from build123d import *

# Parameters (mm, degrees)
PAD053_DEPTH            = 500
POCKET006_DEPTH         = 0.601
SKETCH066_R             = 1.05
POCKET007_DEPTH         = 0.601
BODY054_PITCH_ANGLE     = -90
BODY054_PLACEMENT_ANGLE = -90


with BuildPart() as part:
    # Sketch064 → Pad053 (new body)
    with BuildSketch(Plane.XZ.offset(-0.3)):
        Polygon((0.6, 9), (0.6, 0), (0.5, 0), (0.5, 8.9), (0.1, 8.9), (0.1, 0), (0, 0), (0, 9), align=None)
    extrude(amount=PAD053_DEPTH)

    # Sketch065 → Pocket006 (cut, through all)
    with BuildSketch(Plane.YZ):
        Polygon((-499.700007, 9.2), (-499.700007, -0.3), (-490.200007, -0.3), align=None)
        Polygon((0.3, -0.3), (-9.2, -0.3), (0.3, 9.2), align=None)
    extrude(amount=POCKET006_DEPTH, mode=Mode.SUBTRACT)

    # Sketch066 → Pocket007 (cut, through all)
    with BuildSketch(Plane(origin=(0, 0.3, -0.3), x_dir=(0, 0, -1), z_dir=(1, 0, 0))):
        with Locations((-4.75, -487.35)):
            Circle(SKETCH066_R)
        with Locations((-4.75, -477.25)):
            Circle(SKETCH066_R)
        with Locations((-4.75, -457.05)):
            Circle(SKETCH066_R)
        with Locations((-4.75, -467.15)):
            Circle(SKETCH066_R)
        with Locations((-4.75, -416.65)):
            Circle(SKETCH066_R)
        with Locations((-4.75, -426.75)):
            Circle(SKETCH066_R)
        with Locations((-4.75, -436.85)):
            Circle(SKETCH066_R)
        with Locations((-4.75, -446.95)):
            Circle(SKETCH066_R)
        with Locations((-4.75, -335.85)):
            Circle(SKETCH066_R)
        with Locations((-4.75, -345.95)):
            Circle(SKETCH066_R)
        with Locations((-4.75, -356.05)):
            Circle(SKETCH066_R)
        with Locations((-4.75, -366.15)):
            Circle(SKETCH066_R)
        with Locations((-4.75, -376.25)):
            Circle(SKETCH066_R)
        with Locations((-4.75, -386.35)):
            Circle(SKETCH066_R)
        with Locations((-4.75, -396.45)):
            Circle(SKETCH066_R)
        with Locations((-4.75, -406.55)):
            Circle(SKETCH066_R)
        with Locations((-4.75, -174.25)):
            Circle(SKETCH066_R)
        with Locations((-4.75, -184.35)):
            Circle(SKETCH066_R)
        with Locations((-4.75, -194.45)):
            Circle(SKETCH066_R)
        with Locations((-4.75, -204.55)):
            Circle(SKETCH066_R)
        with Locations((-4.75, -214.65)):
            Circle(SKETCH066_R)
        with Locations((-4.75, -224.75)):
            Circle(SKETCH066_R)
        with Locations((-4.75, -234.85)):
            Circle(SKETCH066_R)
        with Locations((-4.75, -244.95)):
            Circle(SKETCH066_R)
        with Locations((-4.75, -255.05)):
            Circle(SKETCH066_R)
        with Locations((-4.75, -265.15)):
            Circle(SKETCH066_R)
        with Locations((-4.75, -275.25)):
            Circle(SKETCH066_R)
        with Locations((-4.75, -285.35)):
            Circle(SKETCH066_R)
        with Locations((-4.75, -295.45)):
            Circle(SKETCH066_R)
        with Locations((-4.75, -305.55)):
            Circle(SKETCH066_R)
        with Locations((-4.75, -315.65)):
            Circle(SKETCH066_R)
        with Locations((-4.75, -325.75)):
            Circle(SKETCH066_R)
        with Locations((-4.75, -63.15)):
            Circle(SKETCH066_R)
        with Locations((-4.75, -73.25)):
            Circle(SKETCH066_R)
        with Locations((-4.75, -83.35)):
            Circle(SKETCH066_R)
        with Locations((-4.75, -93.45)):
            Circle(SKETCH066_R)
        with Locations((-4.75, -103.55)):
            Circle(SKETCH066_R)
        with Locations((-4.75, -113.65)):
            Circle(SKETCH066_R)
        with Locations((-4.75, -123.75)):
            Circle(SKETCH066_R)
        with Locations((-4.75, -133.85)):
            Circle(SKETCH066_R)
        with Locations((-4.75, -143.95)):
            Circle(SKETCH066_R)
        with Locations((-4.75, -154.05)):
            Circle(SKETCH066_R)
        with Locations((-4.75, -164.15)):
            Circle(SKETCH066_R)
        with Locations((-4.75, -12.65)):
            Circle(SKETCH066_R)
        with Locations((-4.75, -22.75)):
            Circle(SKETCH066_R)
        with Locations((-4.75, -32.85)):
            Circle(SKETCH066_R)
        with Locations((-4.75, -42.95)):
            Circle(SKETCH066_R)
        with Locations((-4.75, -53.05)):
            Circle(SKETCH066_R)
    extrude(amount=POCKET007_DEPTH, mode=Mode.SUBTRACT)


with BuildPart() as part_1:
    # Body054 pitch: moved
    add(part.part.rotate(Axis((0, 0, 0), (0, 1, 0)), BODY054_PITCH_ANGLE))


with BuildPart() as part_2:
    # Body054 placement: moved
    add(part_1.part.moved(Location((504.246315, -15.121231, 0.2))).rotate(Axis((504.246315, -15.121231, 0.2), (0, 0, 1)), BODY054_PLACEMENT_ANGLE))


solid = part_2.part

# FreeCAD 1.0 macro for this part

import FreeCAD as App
import Part
import Sketcher
from FreeCAD import Vector
Q = App.Units.Quantity


def add_polygon(sketch, points):
    """Adds a closed chain of lines whose ends are joined by coincident constraints."""
    first, n = sketch.GeometryCount, len(points)
    for a, b in zip(points, points[1:] + points[:1]):
        sketch.addGeometry(Part.LineSegment(App.Vector(*a, 0), App.Vector(*b, 0)), False)
    for i in range(n):
        sketch.addConstraint(Sketcher.Constraint("Coincident", first + i, 2, first + (i + 1) % n, 1))

doc = App.newDocument("Part")
body = doc.addObject("PartDesign::Body", "Body")

# Sketch on XZ plane
sketch1 = body.newObject("Sketcher::SketchObject", "Sketch")
sketch1.AttachmentSupport = (doc.getObject("XZ_Plane"), [""])
sketch1.MapMode = "FlatFace"
sketch1.AttachmentOffset = App.Placement(Vector(0, 0, -0.3), App.Rotation())
add_polygon(sketch1, [(0.6, 0), (0.6, 9), (0, 9), (0, 0), (0.1, 0), (0.1, 8.9), (0.5, 8.9), (0.5, 0)])  # lines 0-7
sketch1.addConstraint(Sketcher.Constraint("Vertical", 0))
sketch1.addConstraint(Sketcher.Constraint("Horizontal", 1))
sketch1.addConstraint(Sketcher.Constraint("Vertical", 2))
sketch1.addConstraint(Sketcher.Constraint("Horizontal", 3))
sketch1.addConstraint(Sketcher.Constraint("Vertical", 4))
sketch1.addConstraint(Sketcher.Constraint("Horizontal", 5))
sketch1.addConstraint(Sketcher.Constraint("Vertical", 6))
sketch1.addConstraint(Sketcher.Constraint("Horizontal", 7))
sketch1.addConstraint(Sketcher.Constraint("Coincident", 2, 2, -1, 1))
sketch1.addConstraint(Sketcher.Constraint("PointOnObject", 6, 2, -1))
sketch1.addConstraint(Sketcher.Constraint("Equal", 3, 7))
sketch1.addConstraint(Sketcher.Constraint("DistanceY", 0, 1, 0, 2, Q("9 mm")))
sketch1.addConstraint(Sketcher.Constraint("DistanceX", 1, 2, 1, 1, Q("0.6 mm")))
sketch1.addConstraint(Sketcher.Constraint("DistanceX", 3, 1, 3, 2, Q("0.1 mm")))
sketch1.addConstraint(Sketcher.Constraint("DistanceY", 4, 1, 4, 2, Q("8.9 mm")))
pad1 = body.newObject("PartDesign::Pad", "Pad")
pad1.Profile = sketch1
pad1.Length = 500

# Sketch on YZ plane
sketch2 = body.newObject("Sketcher::SketchObject", "Sketch001")
sketch2.AttachmentSupport = (doc.getObject("YZ_Plane"), [""])
sketch2.MapMode = "FlatFace"
add_polygon(sketch2, [(-499.700007, 9.2), (-499.700007, -0.3), (-490.200007, -0.3)])  # lines 0-2
add_polygon(sketch2, [(-9.2, -0.3), (0.3, -0.3), (0.3, 9.2)])  # lines 3-5
sketch2.addConstraint(Sketcher.Constraint("Vertical", 0))
sketch2.addConstraint(Sketcher.Constraint("Horizontal", 1))
sketch2.addConstraint(Sketcher.Constraint("Horizontal", 3))
sketch2.addConstraint(Sketcher.Constraint("Vertical", 4))
sketch2.addConstraint(Sketcher.Constraint("Perpendicular", 2, 5))
sketch2.addConstraint(Sketcher.Constraint("Horizontal", 1, 2, 3, 2))
sketch2.addConstraint(Sketcher.Constraint("Horizontal", 2, 2, 4, 2))
sketch2.addConstraint(Sketcher.Constraint("Equal", 1, 3))
sketch2.addConstraint(Sketcher.Constraint("DistanceX", 1, 1, 1, 2, Q("9.5 mm")))
sketch2.addConstraint(Sketcher.Constraint("DistanceY", 0, 2, -1, 1, Q("0.3 mm")))
sketch2.addConstraint(Sketcher.Constraint("DistanceX", -1, 1, 3, 2, Q("0.3 mm")))
sketch2.addConstraint(Sketcher.Constraint("DistanceX", 0, 2, -1, 1, Q("499.700007 mm")))
pocket1 = body.newObject("PartDesign::Pocket", "Pocket")
pocket1.Profile = sketch2
pocket1.Type = "ThroughAll"
pocket1.Reversed = True

# Sketch on YZ plane
sketch3 = body.newObject("Sketcher::SketchObject", "Sketch002")
sketch3.AttachmentSupport = (doc.getObject("YZ_Plane"), [""])
sketch3.MapMode = "FlatFace"
sketch3.addGeometry(Part.Circle(Vector(-487.05, 4.45, 0), Vector(0, 0, 1), 1.05), False)
sketch3.addGeometry(Part.Circle(Vector(-476.95, 4.45, 0), Vector(0, 0, 1), 1.05), False)
sketch3.addGeometry(Part.Circle(Vector(-456.75, 4.45, 0), Vector(0, 0, 1), 1.05), False)
sketch3.addGeometry(Part.Circle(Vector(-466.85, 4.45, 0), Vector(0, 0, 1), 1.05), False)
sketch3.addGeometry(Part.Circle(Vector(-416.35, 4.45, 0), Vector(0, 0, 1), 1.05), False)
sketch3.addGeometry(Part.Circle(Vector(-426.45, 4.45, 0), Vector(0, 0, 1), 1.05), False)
sketch3.addGeometry(Part.Circle(Vector(-436.55, 4.45, 0), Vector(0, 0, 1), 1.05), False)
sketch3.addGeometry(Part.Circle(Vector(-446.65, 4.45, 0), Vector(0, 0, 1), 1.05), False)
sketch3.addGeometry(Part.Circle(Vector(-335.55, 4.45, 0), Vector(0, 0, 1), 1.05), False)
sketch3.addGeometry(Part.Circle(Vector(-345.65, 4.45, 0), Vector(0, 0, 1), 1.05), False)
sketch3.addGeometry(Part.Circle(Vector(-355.75, 4.45, 0), Vector(0, 0, 1), 1.05), False)
sketch3.addGeometry(Part.Circle(Vector(-365.85, 4.45, 0), Vector(0, 0, 1), 1.05), False)
sketch3.addGeometry(Part.Circle(Vector(-375.95, 4.45, 0), Vector(0, 0, 1), 1.05), False)
sketch3.addGeometry(Part.Circle(Vector(-386.05, 4.45, 0), Vector(0, 0, 1), 1.05), False)
sketch3.addGeometry(Part.Circle(Vector(-396.15, 4.45, 0), Vector(0, 0, 1), 1.05), False)
sketch3.addGeometry(Part.Circle(Vector(-406.25, 4.45, 0), Vector(0, 0, 1), 1.05), False)
sketch3.addGeometry(Part.Circle(Vector(-173.95, 4.45, 0), Vector(0, 0, 1), 1.05), False)
sketch3.addGeometry(Part.Circle(Vector(-184.05, 4.45, 0), Vector(0, 0, 1), 1.05), False)
sketch3.addGeometry(Part.Circle(Vector(-194.15, 4.45, 0), Vector(0, 0, 1), 1.05), False)
sketch3.addGeometry(Part.Circle(Vector(-204.25, 4.45, 0), Vector(0, 0, 1), 1.05), False)
sketch3.addGeometry(Part.Circle(Vector(-214.35, 4.45, 0), Vector(0, 0, 1), 1.05), False)
sketch3.addGeometry(Part.Circle(Vector(-224.45, 4.45, 0), Vector(0, 0, 1), 1.05), False)
sketch3.addGeometry(Part.Circle(Vector(-234.55, 4.45, 0), Vector(0, 0, 1), 1.05), False)
sketch3.addGeometry(Part.Circle(Vector(-244.65, 4.45, 0), Vector(0, 0, 1), 1.05), False)
sketch3.addGeometry(Part.Circle(Vector(-254.75, 4.45, 0), Vector(0, 0, 1), 1.05), False)
sketch3.addGeometry(Part.Circle(Vector(-264.85, 4.45, 0), Vector(0, 0, 1), 1.05), False)
sketch3.addGeometry(Part.Circle(Vector(-274.95, 4.45, 0), Vector(0, 0, 1), 1.05), False)
sketch3.addGeometry(Part.Circle(Vector(-285.05, 4.45, 0), Vector(0, 0, 1), 1.05), False)
sketch3.addGeometry(Part.Circle(Vector(-295.15, 4.45, 0), Vector(0, 0, 1), 1.05), False)
sketch3.addGeometry(Part.Circle(Vector(-305.25, 4.45, 0), Vector(0, 0, 1), 1.05), False)
sketch3.addGeometry(Part.Circle(Vector(-315.35, 4.45, 0), Vector(0, 0, 1), 1.05), False)
sketch3.addGeometry(Part.Circle(Vector(-325.45, 4.45, 0), Vector(0, 0, 1), 1.05), False)
sketch3.addGeometry(Part.Circle(Vector(-62.85, 4.45, 0), Vector(0, 0, 1), 1.05), False)
sketch3.addGeometry(Part.Circle(Vector(-72.95, 4.45, 0), Vector(0, 0, 1), 1.05), False)
sketch3.addGeometry(Part.Circle(Vector(-83.05, 4.45, 0), Vector(0, 0, 1), 1.05), False)
sketch3.addGeometry(Part.Circle(Vector(-93.15, 4.45, 0), Vector(0, 0, 1), 1.05), False)
sketch3.addGeometry(Part.Circle(Vector(-103.25, 4.45, 0), Vector(0, 0, 1), 1.05), False)
sketch3.addGeometry(Part.Circle(Vector(-113.35, 4.45, 0), Vector(0, 0, 1), 1.05), False)
sketch3.addGeometry(Part.Circle(Vector(-123.45, 4.45, 0), Vector(0, 0, 1), 1.05), False)
sketch3.addGeometry(Part.Circle(Vector(-133.55, 4.45, 0), Vector(0, 0, 1), 1.05), False)
sketch3.addGeometry(Part.Circle(Vector(-143.65, 4.45, 0), Vector(0, 0, 1), 1.05), False)
sketch3.addGeometry(Part.Circle(Vector(-153.75, 4.45, 0), Vector(0, 0, 1), 1.05), False)
sketch3.addGeometry(Part.Circle(Vector(-163.85, 4.45, 0), Vector(0, 0, 1), 1.05), False)
sketch3.addGeometry(Part.Circle(Vector(-12.35, 4.45, 0), Vector(0, 0, 1), 1.05), False)
sketch3.addGeometry(Part.Circle(Vector(-22.45, 4.45, 0), Vector(0, 0, 1), 1.05), False)
sketch3.addGeometry(Part.Circle(Vector(-32.55, 4.45, 0), Vector(0, 0, 1), 1.05), False)
sketch3.addGeometry(Part.Circle(Vector(-42.65, 4.45, 0), Vector(0, 0, 1), 1.05), False)
sketch3.addGeometry(Part.Circle(Vector(-52.75, 4.45, 0), Vector(0, 0, 1), 1.05), False)
sketch3.addConstraint(Sketcher.Constraint("Equal", 0, 1))
sketch3.addConstraint(Sketcher.Constraint("Equal", 1, 2))
sketch3.addConstraint(Sketcher.Constraint("Equal", 2, 3))
sketch3.addConstraint(Sketcher.Constraint("Equal", 3, 4))
sketch3.addConstraint(Sketcher.Constraint("Equal", 4, 5))
sketch3.addConstraint(Sketcher.Constraint("Equal", 5, 6))
sketch3.addConstraint(Sketcher.Constraint("Equal", 6, 7))
sketch3.addConstraint(Sketcher.Constraint("Equal", 7, 8))
sketch3.addConstraint(Sketcher.Constraint("Equal", 8, 9))
sketch3.addConstraint(Sketcher.Constraint("Equal", 9, 10))
sketch3.addConstraint(Sketcher.Constraint("Equal", 10, 11))
sketch3.addConstraint(Sketcher.Constraint("Equal", 11, 12))
sketch3.addConstraint(Sketcher.Constraint("Equal", 12, 13))
sketch3.addConstraint(Sketcher.Constraint("Equal", 13, 14))
sketch3.addConstraint(Sketcher.Constraint("Equal", 14, 15))
sketch3.addConstraint(Sketcher.Constraint("Equal", 15, 16))
sketch3.addConstraint(Sketcher.Constraint("Equal", 16, 17))
sketch3.addConstraint(Sketcher.Constraint("Equal", 17, 18))
sketch3.addConstraint(Sketcher.Constraint("Equal", 18, 19))
sketch3.addConstraint(Sketcher.Constraint("Equal", 19, 20))
sketch3.addConstraint(Sketcher.Constraint("Equal", 20, 21))
sketch3.addConstraint(Sketcher.Constraint("Equal", 21, 22))
sketch3.addConstraint(Sketcher.Constraint("Equal", 22, 23))
sketch3.addConstraint(Sketcher.Constraint("Equal", 23, 24))
sketch3.addConstraint(Sketcher.Constraint("Equal", 24, 25))
sketch3.addConstraint(Sketcher.Constraint("Equal", 25, 26))
sketch3.addConstraint(Sketcher.Constraint("Equal", 26, 27))
sketch3.addConstraint(Sketcher.Constraint("Equal", 27, 28))
sketch3.addConstraint(Sketcher.Constraint("Equal", 28, 29))
sketch3.addConstraint(Sketcher.Constraint("Equal", 29, 30))
sketch3.addConstraint(Sketcher.Constraint("Equal", 30, 31))
sketch3.addConstraint(Sketcher.Constraint("Equal", 31, 32))
sketch3.addConstraint(Sketcher.Constraint("Equal", 32, 33))
sketch3.addConstraint(Sketcher.Constraint("Equal", 33, 34))
sketch3.addConstraint(Sketcher.Constraint("Equal", 34, 35))
sketch3.addConstraint(Sketcher.Constraint("Equal", 35, 36))
sketch3.addConstraint(Sketcher.Constraint("Equal", 36, 37))
sketch3.addConstraint(Sketcher.Constraint("Equal", 37, 38))
sketch3.addConstraint(Sketcher.Constraint("Equal", 38, 39))
sketch3.addConstraint(Sketcher.Constraint("Equal", 39, 40))
sketch3.addConstraint(Sketcher.Constraint("Equal", 40, 41))
sketch3.addConstraint(Sketcher.Constraint("Equal", 41, 42))
sketch3.addConstraint(Sketcher.Constraint("Equal", 42, 43))
sketch3.addConstraint(Sketcher.Constraint("Equal", 43, 44))
sketch3.addConstraint(Sketcher.Constraint("Equal", 44, 45))
sketch3.addConstraint(Sketcher.Constraint("Equal", 45, 46))
sketch3.addConstraint(Sketcher.Constraint("Equal", 46, 47))
sketch3.addConstraint(Sketcher.Constraint("Horizontal", 0, 3, 1, 3))
sketch3.addConstraint(Sketcher.Constraint("Horizontal", 1, 3, 2, 3))
sketch3.addConstraint(Sketcher.Constraint("Horizontal", 2, 3, 3, 3))
sketch3.addConstraint(Sketcher.Constraint("Horizontal", 3, 3, 4, 3))
sketch3.addConstraint(Sketcher.Constraint("Horizontal", 4, 3, 5, 3))
sketch3.addConstraint(Sketcher.Constraint("Horizontal", 5, 3, 6, 3))
sketch3.addConstraint(Sketcher.Constraint("Horizontal", 6, 3, 7, 3))
sketch3.addConstraint(Sketcher.Constraint("Horizontal", 7, 3, 8, 3))
sketch3.addConstraint(Sketcher.Constraint("Horizontal", 8, 3, 9, 3))
sketch3.addConstraint(Sketcher.Constraint("Horizontal", 9, 3, 10, 3))
sketch3.addConstraint(Sketcher.Constraint("Horizontal", 10, 3, 11, 3))
sketch3.addConstraint(Sketcher.Constraint("Horizontal", 11, 3, 12, 3))
sketch3.addConstraint(Sketcher.Constraint("Horizontal", 12, 3, 13, 3))
sketch3.addConstraint(Sketcher.Constraint("Horizontal", 13, 3, 14, 3))
sketch3.addConstraint(Sketcher.Constraint("Horizontal", 14, 3, 15, 3))
sketch3.addConstraint(Sketcher.Constraint("Horizontal", 15, 3, 16, 3))
sketch3.addConstraint(Sketcher.Constraint("Horizontal", 16, 3, 17, 3))
sketch3.addConstraint(Sketcher.Constraint("Horizontal", 17, 3, 18, 3))
sketch3.addConstraint(Sketcher.Constraint("Horizontal", 18, 3, 19, 3))
sketch3.addConstraint(Sketcher.Constraint("Horizontal", 19, 3, 20, 3))
sketch3.addConstraint(Sketcher.Constraint("Horizontal", 20, 3, 21, 3))
sketch3.addConstraint(Sketcher.Constraint("Horizontal", 21, 3, 22, 3))
sketch3.addConstraint(Sketcher.Constraint("Horizontal", 22, 3, 23, 3))
sketch3.addConstraint(Sketcher.Constraint("Horizontal", 23, 3, 24, 3))
sketch3.addConstraint(Sketcher.Constraint("Horizontal", 24, 3, 25, 3))
sketch3.addConstraint(Sketcher.Constraint("Horizontal", 25, 3, 26, 3))
sketch3.addConstraint(Sketcher.Constraint("Horizontal", 26, 3, 27, 3))
sketch3.addConstraint(Sketcher.Constraint("Horizontal", 27, 3, 28, 3))
sketch3.addConstraint(Sketcher.Constraint("Horizontal", 28, 3, 29, 3))
sketch3.addConstraint(Sketcher.Constraint("Horizontal", 29, 3, 30, 3))
sketch3.addConstraint(Sketcher.Constraint("Horizontal", 30, 3, 31, 3))
sketch3.addConstraint(Sketcher.Constraint("Horizontal", 31, 3, 32, 3))
sketch3.addConstraint(Sketcher.Constraint("Horizontal", 32, 3, 33, 3))
sketch3.addConstraint(Sketcher.Constraint("Horizontal", 33, 3, 34, 3))
sketch3.addConstraint(Sketcher.Constraint("Horizontal", 34, 3, 35, 3))
sketch3.addConstraint(Sketcher.Constraint("Horizontal", 35, 3, 36, 3))
sketch3.addConstraint(Sketcher.Constraint("Horizontal", 36, 3, 37, 3))
sketch3.addConstraint(Sketcher.Constraint("Horizontal", 37, 3, 38, 3))
sketch3.addConstraint(Sketcher.Constraint("Horizontal", 38, 3, 39, 3))
sketch3.addConstraint(Sketcher.Constraint("Horizontal", 39, 3, 40, 3))
sketch3.addConstraint(Sketcher.Constraint("Horizontal", 40, 3, 41, 3))
sketch3.addConstraint(Sketcher.Constraint("Horizontal", 41, 3, 42, 3))
sketch3.addConstraint(Sketcher.Constraint("Horizontal", 42, 3, 43, 3))
sketch3.addConstraint(Sketcher.Constraint("Horizontal", 43, 3, 44, 3))
sketch3.addConstraint(Sketcher.Constraint("Horizontal", 44, 3, 45, 3))
sketch3.addConstraint(Sketcher.Constraint("Horizontal", 45, 3, 46, 3))
sketch3.addConstraint(Sketcher.Constraint("Horizontal", 46, 3, 47, 3))
sketch3.addConstraint(Sketcher.Constraint("Diameter", 0, Q("2.1 mm")))
sketch3.addConstraint(Sketcher.Constraint("DistanceX", 6, 3, 8, 3, Q("101 mm")))
sketch3.addConstraint(Sketcher.Constraint("DistanceX", 7, 3, 9, 3, Q("101 mm")))
sketch3.addConstraint(Sketcher.Constraint("DistanceX", 12, 3, 16, 3, Q("202 mm")))
sketch3.addConstraint(Sketcher.Constraint("DistanceX", 16, 3, 33, 3, Q("101 mm")))
sketch3.addConstraint(Sketcher.Constraint("DistanceX", 17, 3, 34, 3, Q("101 mm")))
sketch3.addConstraint(Sketcher.Constraint("DistanceX", 0, 3, 1, 3, Q("10.1 mm")))
sketch3.addConstraint(Sketcher.Constraint("DistanceX", 1, 3, 2, 3, Q("20.2 mm")))
sketch3.addConstraint(Sketcher.Constraint("DistanceX", 1, 3, 3, 3, Q("10.1 mm")))
sketch3.addConstraint(Sketcher.Constraint("DistanceX", 2, 3, 4, 3, Q("40.4 mm")))
sketch3.addConstraint(Sketcher.Constraint("DistanceX", 5, 3, 4, 3, Q("10.1 mm")))
sketch3.addConstraint(Sketcher.Constraint("DistanceX", 6, 3, 5, 3, Q("10.1 mm")))
sketch3.addConstraint(Sketcher.Constraint("DistanceX", 7, 3, 6, 3, Q("10.1 mm")))
sketch3.addConstraint(Sketcher.Constraint("DistanceX", 10, 3, 9, 3, Q("10.1 mm")))
sketch3.addConstraint(Sketcher.Constraint("DistanceX", 11, 3, 10, 3, Q("10.1 mm")))
sketch3.addConstraint(Sketcher.Constraint("DistanceX", 12, 3, 11, 3, Q("10.1 mm")))
sketch3.addConstraint(Sketcher.Constraint("DistanceX", 13, 3, 12, 3, Q("10.1 mm")))
sketch3.addConstraint(Sketcher.Constraint("DistanceX", 14, 3, 13, 3, Q("10.1 mm")))
sketch3.addConstraint(Sketcher.Constraint("DistanceX", 4, 3, 15, 3, Q("10.1 mm")))
sketch3.addConstraint(Sketcher.Constraint("DistanceX", 17, 3, 16, 3, Q("10.1 mm")))
sketch3.addConstraint(Sketcher.Constraint("DistanceX", 18, 3, 17, 3, Q("10.1 mm")))
sketch3.addConstraint(Sketcher.Constraint("DistanceX", 19, 3, 18, 3, Q("10.1 mm")))
sketch3.addConstraint(Sketcher.Constraint("DistanceX", 20, 3, 19, 3, Q("10.1 mm")))
sketch3.addConstraint(Sketcher.Constraint("DistanceX", 21, 3, 20, 3, Q("10.1 mm")))
sketch3.addConstraint(Sketcher.Constraint("DistanceX", 22, 3, 21, 3, Q("10.1 mm")))
sketch3.addConstraint(Sketcher.Constraint("DistanceX", 23, 3, 22, 3, Q("10.1 mm")))
sketch3.addConstraint(Sketcher.Constraint("DistanceX", 24, 3, 23, 3, Q("10.1 mm")))
sketch3.addConstraint(Sketcher.Constraint("DistanceX", 25, 3, 24, 3, Q("10.1 mm")))
sketch3.addConstraint(Sketcher.Constraint("DistanceX", 26, 3, 25, 3, Q("10.1 mm")))
sketch3.addConstraint(Sketcher.Constraint("DistanceX", 27, 3, 26, 3, Q("10.1 mm")))
sketch3.addConstraint(Sketcher.Constraint("DistanceX", 28, 3, 27, 3, Q("10.1 mm")))
sketch3.addConstraint(Sketcher.Constraint("DistanceX", 29, 3, 28, 3, Q("10.1 mm")))
sketch3.addConstraint(Sketcher.Constraint("DistanceX", 30, 3, 29, 3, Q("10.1 mm")))
sketch3.addConstraint(Sketcher.Constraint("DistanceX", 31, 3, 30, 3, Q("10.1 mm")))
sketch3.addConstraint(Sketcher.Constraint("DistanceX", 16, 3, 32, 3, Q("111.1 mm")))
sketch3.addConstraint(Sketcher.Constraint("DistanceX", 35, 3, 34, 3, Q("10.1 mm")))
sketch3.addConstraint(Sketcher.Constraint("DistanceX", 36, 3, 35, 3, Q("10.1 mm")))
sketch3.addConstraint(Sketcher.Constraint("DistanceX", 37, 3, 36, 3, Q("10.1 mm")))
sketch3.addConstraint(Sketcher.Constraint("DistanceX", 38, 3, 37, 3, Q("10.1 mm")))
sketch3.addConstraint(Sketcher.Constraint("DistanceX", 39, 3, 38, 3, Q("10.1 mm")))
sketch3.addConstraint(Sketcher.Constraint("DistanceX", 40, 3, 39, 3, Q("10.1 mm")))
sketch3.addConstraint(Sketcher.Constraint("DistanceX", 41, 3, 40, 3, Q("10.1 mm")))
sketch3.addConstraint(Sketcher.Constraint("DistanceX", 16, 3, 42, 3, Q("10.1 mm")))
sketch3.addConstraint(Sketcher.Constraint("DistanceX", 32, 3, 43, 3, Q("50.5 mm")))
sketch3.addConstraint(Sketcher.Constraint("DistanceX", 44, 3, 43, 3, Q("10.1 mm")))
sketch3.addConstraint(Sketcher.Constraint("DistanceX", 45, 3, 44, 3, Q("10.1 mm")))
sketch3.addConstraint(Sketcher.Constraint("DistanceX", 46, 3, 45, 3, Q("10.1 mm")))
sketch3.addConstraint(Sketcher.Constraint("DistanceX", 32, 3, 47, 3, Q("10.1 mm")))
sketch3.addConstraint(Sketcher.Constraint("DistanceX", 0, 3, -1, 1, Q("487.05 mm")))
sketch3.addConstraint(Sketcher.Constraint("DistanceY", -1, 1, 0, 3, Q("4.45 mm")))
pocket2 = body.newObject("PartDesign::Pocket", "Pocket001")
pocket2.Profile = sketch3
pocket2.Type = "ThroughAll"
pocket2.Reversed = True
body2 = doc.addObject("PartDesign::Body", "Body001")
doc.recompute()

body.Placement = App.Placement(Vector(0, 0, 0), App.Rotation(Vector(0, 1, 0), 270))
boolean = body2.newObject("PartDesign::Boolean", "Boolean")
boolean.Type = "Fuse"
boolean.addObjects([body])
body3 = doc.addObject("PartDesign::Body", "Body002")
doc.recompute()

body2.Placement = App.Placement(Vector(504.246315, -15.121231, 0.2), App.Rotation(Vector(0, 0, 1), 270))
boolean2 = body3.newObject("PartDesign::Boolean", "Boolean001")
boolean2.Type = "Fuse"
boolean2.addObjects([body2])

doc.recompute()
